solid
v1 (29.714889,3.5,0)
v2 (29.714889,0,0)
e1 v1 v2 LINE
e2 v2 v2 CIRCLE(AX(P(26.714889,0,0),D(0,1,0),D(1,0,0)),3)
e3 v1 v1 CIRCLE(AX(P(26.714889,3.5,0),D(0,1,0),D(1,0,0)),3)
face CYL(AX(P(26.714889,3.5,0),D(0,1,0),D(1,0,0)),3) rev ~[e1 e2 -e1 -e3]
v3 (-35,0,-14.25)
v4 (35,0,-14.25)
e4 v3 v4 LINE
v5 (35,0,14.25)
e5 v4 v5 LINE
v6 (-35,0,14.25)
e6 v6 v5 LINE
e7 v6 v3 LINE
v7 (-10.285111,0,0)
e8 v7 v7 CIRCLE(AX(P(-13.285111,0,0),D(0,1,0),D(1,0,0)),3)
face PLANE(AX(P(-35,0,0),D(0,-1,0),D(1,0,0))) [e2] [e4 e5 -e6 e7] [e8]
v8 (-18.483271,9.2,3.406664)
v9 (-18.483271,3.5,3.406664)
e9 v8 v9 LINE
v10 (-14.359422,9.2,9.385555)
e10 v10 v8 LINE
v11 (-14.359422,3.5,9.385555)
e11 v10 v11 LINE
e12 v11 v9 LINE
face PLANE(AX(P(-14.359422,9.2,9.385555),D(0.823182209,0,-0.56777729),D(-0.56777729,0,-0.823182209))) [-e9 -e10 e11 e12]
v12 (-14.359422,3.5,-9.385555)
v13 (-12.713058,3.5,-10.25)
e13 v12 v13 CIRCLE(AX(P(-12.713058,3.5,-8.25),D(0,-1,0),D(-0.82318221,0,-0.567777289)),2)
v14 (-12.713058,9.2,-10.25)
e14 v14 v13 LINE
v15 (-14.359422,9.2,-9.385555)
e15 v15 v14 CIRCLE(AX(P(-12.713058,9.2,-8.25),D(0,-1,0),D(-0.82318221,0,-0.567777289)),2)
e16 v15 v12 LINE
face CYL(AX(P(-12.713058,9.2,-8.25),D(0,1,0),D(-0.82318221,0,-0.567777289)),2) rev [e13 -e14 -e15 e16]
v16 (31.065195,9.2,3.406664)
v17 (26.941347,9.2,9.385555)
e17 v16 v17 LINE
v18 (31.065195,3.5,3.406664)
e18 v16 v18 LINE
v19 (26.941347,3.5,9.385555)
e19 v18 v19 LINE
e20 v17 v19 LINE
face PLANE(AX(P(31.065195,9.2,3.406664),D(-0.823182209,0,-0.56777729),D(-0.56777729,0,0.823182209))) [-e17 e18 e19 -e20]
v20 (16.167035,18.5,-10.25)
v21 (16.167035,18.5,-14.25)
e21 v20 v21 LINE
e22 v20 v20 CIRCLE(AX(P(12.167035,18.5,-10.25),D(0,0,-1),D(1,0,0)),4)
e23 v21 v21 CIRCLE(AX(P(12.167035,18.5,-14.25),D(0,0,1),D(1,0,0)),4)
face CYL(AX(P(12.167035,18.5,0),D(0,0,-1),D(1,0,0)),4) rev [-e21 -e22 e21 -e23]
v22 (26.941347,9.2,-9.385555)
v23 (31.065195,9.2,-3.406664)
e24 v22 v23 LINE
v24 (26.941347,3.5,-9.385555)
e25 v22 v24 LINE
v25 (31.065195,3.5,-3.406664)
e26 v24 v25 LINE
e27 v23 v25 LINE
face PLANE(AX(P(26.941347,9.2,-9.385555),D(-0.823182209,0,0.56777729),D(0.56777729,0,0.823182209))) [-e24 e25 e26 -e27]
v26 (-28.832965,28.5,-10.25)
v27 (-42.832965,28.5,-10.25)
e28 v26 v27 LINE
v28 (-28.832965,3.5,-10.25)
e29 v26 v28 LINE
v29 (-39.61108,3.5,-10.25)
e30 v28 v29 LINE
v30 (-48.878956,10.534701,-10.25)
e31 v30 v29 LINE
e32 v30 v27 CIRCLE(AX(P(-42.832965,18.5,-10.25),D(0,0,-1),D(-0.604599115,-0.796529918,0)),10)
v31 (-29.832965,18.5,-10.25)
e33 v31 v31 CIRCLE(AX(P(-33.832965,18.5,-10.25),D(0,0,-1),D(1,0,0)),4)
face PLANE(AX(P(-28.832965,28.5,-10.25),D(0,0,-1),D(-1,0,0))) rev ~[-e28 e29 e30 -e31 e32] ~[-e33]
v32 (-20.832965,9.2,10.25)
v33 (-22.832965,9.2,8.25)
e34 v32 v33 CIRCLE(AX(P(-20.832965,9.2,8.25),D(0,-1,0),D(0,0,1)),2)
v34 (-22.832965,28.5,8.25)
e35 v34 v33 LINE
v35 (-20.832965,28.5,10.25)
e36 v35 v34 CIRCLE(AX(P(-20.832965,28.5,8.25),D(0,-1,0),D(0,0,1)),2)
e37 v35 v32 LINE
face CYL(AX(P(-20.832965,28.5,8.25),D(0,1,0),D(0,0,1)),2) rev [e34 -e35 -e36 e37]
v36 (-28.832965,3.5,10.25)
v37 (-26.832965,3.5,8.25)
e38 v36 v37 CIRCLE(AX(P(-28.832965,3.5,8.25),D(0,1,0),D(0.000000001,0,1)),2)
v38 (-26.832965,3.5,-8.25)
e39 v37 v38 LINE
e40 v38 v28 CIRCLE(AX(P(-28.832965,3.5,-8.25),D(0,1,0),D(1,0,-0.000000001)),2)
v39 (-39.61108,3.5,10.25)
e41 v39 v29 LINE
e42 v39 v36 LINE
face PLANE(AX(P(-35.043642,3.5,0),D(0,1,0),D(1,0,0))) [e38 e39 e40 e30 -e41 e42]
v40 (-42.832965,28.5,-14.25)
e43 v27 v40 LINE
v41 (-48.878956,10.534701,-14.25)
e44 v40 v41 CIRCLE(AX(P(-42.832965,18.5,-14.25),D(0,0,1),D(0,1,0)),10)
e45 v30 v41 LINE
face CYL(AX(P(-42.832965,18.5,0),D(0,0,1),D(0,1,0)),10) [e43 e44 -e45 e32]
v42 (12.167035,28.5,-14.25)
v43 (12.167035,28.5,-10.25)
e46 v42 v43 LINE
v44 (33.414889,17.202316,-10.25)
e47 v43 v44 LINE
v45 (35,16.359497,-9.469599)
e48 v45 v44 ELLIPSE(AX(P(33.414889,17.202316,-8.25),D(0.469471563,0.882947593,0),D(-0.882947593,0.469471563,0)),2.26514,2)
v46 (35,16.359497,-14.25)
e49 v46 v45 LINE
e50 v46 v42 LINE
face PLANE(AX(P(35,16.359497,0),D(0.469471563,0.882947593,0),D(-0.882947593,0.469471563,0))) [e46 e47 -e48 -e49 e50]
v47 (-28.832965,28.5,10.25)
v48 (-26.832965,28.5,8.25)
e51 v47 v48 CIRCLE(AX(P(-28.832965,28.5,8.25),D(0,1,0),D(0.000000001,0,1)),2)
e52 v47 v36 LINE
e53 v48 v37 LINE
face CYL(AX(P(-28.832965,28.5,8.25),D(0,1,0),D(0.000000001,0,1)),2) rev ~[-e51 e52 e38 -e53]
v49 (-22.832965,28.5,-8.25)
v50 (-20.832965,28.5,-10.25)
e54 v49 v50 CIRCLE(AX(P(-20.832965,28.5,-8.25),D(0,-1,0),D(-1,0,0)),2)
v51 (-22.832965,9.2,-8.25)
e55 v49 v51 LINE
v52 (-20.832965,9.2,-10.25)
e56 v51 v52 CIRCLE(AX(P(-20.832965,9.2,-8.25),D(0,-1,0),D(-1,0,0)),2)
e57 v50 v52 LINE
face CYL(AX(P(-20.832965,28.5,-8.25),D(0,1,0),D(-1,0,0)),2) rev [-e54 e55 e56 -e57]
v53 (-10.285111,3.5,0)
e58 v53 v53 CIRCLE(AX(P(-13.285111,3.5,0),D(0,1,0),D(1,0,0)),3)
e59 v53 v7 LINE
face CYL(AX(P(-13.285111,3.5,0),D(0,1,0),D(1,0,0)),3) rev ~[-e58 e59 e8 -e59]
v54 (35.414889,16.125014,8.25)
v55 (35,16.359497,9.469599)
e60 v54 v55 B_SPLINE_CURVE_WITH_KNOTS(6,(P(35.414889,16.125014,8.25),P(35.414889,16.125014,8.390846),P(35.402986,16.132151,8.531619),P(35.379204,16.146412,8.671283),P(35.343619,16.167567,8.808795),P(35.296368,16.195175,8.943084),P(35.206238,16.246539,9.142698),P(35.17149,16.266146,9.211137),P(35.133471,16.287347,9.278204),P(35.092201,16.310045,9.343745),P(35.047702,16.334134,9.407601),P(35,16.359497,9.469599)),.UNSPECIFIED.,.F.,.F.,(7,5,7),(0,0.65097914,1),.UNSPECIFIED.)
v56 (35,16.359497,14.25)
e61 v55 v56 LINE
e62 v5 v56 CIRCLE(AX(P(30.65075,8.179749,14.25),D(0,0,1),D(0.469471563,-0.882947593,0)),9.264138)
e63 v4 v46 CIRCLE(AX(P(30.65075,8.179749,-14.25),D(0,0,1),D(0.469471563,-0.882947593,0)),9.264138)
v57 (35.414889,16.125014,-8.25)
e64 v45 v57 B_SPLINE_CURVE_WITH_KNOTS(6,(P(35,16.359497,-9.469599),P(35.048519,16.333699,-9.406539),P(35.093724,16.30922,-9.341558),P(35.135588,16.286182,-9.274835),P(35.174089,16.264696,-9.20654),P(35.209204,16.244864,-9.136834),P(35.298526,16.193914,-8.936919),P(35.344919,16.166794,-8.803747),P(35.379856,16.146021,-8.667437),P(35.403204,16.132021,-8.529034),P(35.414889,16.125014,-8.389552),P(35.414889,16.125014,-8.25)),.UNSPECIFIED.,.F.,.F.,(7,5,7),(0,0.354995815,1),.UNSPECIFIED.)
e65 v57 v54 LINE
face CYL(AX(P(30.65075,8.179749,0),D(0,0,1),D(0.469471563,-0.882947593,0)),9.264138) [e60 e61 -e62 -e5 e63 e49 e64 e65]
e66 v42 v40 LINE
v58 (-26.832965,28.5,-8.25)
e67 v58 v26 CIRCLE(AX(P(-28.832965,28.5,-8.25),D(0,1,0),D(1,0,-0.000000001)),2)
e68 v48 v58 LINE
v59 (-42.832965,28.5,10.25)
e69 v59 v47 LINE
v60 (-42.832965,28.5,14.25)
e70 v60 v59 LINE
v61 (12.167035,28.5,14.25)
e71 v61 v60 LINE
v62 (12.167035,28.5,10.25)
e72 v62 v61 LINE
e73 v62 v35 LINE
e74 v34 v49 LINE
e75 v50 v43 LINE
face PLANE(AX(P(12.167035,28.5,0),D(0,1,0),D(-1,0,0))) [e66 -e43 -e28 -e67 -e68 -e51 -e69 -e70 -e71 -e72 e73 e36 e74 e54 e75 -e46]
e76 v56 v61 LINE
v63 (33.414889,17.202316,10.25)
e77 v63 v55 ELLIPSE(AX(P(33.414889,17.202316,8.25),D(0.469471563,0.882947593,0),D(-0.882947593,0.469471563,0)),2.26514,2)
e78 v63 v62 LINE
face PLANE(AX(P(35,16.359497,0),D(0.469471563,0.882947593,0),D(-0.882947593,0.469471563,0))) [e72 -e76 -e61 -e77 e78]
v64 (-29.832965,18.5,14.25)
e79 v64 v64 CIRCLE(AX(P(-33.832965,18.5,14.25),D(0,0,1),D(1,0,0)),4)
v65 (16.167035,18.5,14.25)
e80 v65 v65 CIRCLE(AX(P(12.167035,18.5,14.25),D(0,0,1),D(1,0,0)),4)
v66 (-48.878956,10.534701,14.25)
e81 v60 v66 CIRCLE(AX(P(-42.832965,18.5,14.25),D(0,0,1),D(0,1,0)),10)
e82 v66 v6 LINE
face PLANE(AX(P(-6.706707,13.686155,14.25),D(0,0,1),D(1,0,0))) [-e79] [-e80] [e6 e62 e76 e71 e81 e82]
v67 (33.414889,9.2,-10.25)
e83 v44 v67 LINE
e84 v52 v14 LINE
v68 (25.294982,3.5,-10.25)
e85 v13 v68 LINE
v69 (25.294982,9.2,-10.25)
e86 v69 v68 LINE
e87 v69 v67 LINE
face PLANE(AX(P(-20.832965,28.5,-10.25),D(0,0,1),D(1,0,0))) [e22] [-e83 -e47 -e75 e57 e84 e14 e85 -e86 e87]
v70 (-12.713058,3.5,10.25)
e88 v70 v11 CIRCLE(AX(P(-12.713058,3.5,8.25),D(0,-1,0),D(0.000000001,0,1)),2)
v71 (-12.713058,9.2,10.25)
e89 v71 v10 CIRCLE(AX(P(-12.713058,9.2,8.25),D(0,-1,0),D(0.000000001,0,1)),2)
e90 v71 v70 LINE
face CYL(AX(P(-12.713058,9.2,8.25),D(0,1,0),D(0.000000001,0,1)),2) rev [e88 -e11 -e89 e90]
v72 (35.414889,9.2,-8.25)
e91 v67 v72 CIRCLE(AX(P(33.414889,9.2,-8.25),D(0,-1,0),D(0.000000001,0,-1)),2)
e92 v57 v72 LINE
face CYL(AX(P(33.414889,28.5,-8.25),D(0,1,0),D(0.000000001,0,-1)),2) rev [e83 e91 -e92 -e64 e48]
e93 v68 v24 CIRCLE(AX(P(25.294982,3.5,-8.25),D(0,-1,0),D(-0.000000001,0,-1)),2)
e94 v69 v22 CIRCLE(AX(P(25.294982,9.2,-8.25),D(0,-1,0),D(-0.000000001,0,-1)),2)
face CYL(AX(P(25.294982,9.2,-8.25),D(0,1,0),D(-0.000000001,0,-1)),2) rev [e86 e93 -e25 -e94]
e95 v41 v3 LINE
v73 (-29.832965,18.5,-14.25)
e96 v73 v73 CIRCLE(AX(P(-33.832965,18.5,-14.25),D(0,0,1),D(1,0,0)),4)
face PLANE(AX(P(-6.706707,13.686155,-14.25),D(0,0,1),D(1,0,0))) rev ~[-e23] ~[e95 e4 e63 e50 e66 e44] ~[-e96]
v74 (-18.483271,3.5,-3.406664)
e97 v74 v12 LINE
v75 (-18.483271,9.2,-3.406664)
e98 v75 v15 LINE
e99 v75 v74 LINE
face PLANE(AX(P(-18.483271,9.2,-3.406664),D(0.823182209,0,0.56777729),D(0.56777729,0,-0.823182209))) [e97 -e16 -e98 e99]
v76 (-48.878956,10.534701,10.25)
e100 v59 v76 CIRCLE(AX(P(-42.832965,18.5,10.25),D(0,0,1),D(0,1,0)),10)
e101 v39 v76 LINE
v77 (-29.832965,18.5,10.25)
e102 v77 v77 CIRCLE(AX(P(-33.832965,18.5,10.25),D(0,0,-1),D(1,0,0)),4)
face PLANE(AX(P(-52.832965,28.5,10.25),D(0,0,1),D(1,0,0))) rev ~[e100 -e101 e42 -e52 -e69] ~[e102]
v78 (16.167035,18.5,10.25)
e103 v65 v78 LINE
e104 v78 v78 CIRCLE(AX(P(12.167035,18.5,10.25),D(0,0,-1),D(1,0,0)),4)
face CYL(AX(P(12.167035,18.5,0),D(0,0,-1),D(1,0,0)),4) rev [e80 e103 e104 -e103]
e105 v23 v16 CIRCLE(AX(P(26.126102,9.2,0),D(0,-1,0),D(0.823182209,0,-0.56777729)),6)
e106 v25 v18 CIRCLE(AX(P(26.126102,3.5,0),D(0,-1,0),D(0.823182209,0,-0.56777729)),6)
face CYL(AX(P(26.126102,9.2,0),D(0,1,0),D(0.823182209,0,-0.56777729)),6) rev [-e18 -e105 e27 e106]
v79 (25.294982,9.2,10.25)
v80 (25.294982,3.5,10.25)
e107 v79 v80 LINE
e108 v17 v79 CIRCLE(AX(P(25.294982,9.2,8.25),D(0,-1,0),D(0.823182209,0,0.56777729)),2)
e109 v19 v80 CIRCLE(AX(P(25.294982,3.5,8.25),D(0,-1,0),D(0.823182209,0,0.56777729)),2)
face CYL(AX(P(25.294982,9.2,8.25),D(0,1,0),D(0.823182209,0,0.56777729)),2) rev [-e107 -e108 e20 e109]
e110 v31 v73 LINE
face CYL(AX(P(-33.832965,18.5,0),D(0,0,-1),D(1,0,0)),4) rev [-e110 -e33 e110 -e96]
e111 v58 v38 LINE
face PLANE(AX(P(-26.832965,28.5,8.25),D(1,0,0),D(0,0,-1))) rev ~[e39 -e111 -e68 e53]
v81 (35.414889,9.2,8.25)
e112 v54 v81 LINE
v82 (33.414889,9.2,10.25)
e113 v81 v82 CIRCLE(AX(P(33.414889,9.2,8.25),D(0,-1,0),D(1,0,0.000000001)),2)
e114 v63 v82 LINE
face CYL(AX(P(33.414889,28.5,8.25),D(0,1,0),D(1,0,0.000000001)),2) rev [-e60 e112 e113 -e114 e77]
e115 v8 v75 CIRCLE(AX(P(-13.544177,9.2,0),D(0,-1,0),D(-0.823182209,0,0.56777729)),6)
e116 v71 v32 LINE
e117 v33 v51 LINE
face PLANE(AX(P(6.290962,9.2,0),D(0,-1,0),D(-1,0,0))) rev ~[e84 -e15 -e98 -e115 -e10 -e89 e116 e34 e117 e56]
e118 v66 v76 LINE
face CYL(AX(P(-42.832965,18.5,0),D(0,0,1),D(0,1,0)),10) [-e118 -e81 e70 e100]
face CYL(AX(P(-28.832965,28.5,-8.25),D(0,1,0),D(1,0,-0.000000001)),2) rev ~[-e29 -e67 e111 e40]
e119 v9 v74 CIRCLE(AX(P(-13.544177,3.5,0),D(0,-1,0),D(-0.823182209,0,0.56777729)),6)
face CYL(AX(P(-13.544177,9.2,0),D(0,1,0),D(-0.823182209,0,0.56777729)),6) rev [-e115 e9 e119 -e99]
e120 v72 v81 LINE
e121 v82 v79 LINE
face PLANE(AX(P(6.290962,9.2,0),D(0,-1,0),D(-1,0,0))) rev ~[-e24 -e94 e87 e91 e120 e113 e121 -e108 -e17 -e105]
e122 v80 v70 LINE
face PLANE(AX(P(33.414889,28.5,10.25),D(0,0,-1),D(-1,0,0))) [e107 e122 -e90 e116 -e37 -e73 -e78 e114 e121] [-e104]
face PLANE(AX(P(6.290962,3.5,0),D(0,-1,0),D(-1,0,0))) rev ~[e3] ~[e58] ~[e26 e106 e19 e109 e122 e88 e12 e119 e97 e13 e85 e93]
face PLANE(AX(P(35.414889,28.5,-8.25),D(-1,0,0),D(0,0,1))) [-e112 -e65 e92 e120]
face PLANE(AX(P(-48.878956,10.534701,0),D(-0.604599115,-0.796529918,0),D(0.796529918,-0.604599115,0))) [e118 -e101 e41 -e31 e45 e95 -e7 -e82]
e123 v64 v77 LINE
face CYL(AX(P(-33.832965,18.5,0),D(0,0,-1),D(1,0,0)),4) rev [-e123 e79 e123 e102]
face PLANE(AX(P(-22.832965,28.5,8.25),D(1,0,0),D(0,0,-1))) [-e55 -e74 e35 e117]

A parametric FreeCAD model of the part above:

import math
import FreeCAD as App
import Part
import Sketcher

V = App.Vector
Q = App.Units.Quantity

doc = App.newDocument("Part")
body = doc.addObject("PartDesign::Body", "Body")

# Sketch on XY plane
sketch1 = body.newObject("Sketcher::SketchObject", "Sketch")
sketch1.AttachmentSupport = (doc.getObject("XY_Plane"), [""])
sketch1.MapMode = "FlatFace"
sketch1.addGeometry([
    Part.LineSegment(V(-35, 0, 0), V(35, 0, 0)),  # 0
    Part.ArcOfCircle(Part.Circle(V(30.7, 8.2, 0), V(0, 0, 1), 9.3), math.radians(-62), math.radians(62)),  # 1
    Part.LineSegment(V(35, 16.4, 0), V(12.2, 28.5, 0)),  # 2
    Part.LineSegment(V(12.2, 28.5, 0), V(-42.8, 28.5, 0)),  # 3
    Part.ArcOfCircle(Part.Circle(V(-42.8, 18.5, 0), V(0, 0, 1), 10), math.radians(90), math.radians(233)),  # 4
    Part.LineSegment(V(-48.9, 10.5, 0), V(-35, 0, 0)),  # 5
    Part.Circle(V(-33.8, 18.5, 0), V(0, 0, 1), 4),  # 6
    Part.Circle(V(12.2, 18.5, 0), V(0, 0, 1), 4),  # 7
], False)
sketch1.addConstraint([
    Sketcher.Constraint("Coincident", 0, 2, 1, 1),
    Sketcher.Constraint("Tangent", 1, 2, 2, 1),
    Sketcher.Constraint("Coincident", 2, 2, 3, 1),
    Sketcher.Constraint("Tangent", 3, 2, 4, 1),
    Sketcher.Constraint("Tangent", 4, 2, 5, 1),
    Sketcher.Constraint("Coincident", 5, 2, 0, 1),
    Sketcher.Constraint("Horizontal", 0),
    Sketcher.Constraint("Horizontal", 3),
    Sketcher.Constraint("Equal", 6, 7),
    Sketcher.Constraint("Symmetric", 0, 2, 5, 2, -1, 1),
    Sketcher.Constraint("Horizontal", 4, 3, 6, 3),
    Sketcher.Constraint("Horizontal", 6, 3, 7, 3),
    Sketcher.Constraint("Vertical", 0, 2, 1, 2),
    Sketcher.Constraint("Vertical", 7, 3, 2, 2),
    Sketcher.Constraint("Diameter", 6, 8.0),
    Sketcher.Constraint("Radius", 4, 10.0),
    Sketcher.Constraint("DistanceX", 0, 1, 0, 2, 70.0),
    Sketcher.Constraint("DistanceX", 3, 2, 3, 1, 55.0),
    Sketcher.Constraint("Angle", 2, Q("152 deg")),
    Sketcher.Constraint("Angle", 5, Q("-37.2 deg")),
    Sketcher.Constraint("DistanceX", 4, 3, 6, 3, 9.0),
    Sketcher.Constraint("DistanceY", -1, 1, 4, 3, 18.5),
])
pad1 = body.newObject("PartDesign::Pad", "Pad")
pad1.Profile = sketch1
pad1.Length = 28.5
pad1.Midplane = True

# Sketch on XZ plane
sketch2 = body.newObject("Sketcher::SketchObject", "Sketch001")
sketch2.AttachmentSupport = (doc.getObject("XZ_Plane"), [""])
sketch2.MapMode = "FlatFace"
sketch2.AttachmentOffset = App.Placement(V(0, 0, -28.5), App.Rotation())
sketch2.addGeometry([
    Part.LineSegment(V(-28.8, -10.2, 0), V(-52.8, -10.2, 0)),  # 0
    Part.LineSegment(V(-52.8, -10.2, 0), V(-52.8, 10.2, 0)),  # 1
    Part.LineSegment(V(-52.8, 10.2, 0), V(-28.8, 10.2, 0)),  # 2
    Part.ArcOfCircle(Part.Circle(V(-28.8, 8.2, 0), V(0, 0, 1), 2), math.radians(0), math.radians(90)),  # 3
    Part.LineSegment(V(-26.8, 8.2, 0), V(-26.8, -8.2, 0)),  # 4
    Part.ArcOfCircle(Part.Circle(V(-28.8, -8.2, 0), V(0, 0, 1), 2), math.radians(-90), math.radians(0)),  # 5
], False)
sketch2.addConstraint([
    Sketcher.Constraint("Coincident", 0, 2, 1, 1),
    Sketcher.Constraint("Coincident", 1, 2, 2, 1),
    Sketcher.Constraint("Tangent", 2, 2, 3, 2),
    Sketcher.Constraint("Tangent", 3, 1, 4, 1),
    Sketcher.Constraint("Tangent", 4, 2, 5, 2),
    Sketcher.Constraint("Tangent", 5, 1, 0, 1),
    Sketcher.Constraint("Horizontal", 0),
    Sketcher.Constraint("Vertical", 1),
    Sketcher.Constraint("Horizontal", 2),
    Sketcher.Constraint("Vertical", 4),
    Sketcher.Constraint("Equal", 3, 5),
    Sketcher.Constraint("Radius", 3, 2.0),
    Sketcher.Constraint("DistanceX", 0, 2, 0, 1, 24.0),
    Sketcher.Constraint("DistanceY", 1, 1, 1, 2, 20.5),
    Sketcher.Constraint("DistanceY", -1, 1, 3, 3, 8.25),
    Sketcher.Constraint("DistanceX", 3, 3, -1, 1, 28.832965),
])
pocket1 = body.newObject("PartDesign::Pocket", "Pocket")
pocket1.Profile = sketch2
pocket1.Length = 25
pocket1.Reversed = True

# Sketch on XZ plane
sketch3 = body.newObject("Sketcher::SketchObject", "Sketch002")
sketch3.AttachmentSupport = (doc.getObject("XZ_Plane"), [""])
sketch3.MapMode = "FlatFace"
sketch3.AttachmentOffset = App.Placement(V(0, 0, -28.5), App.Rotation())
sketch3.addGeometry([
    Part.LineSegment(V(33.4, -10.2, 0), V(-20.8, -10.2, 0)),  # 0
    Part.ArcOfCircle(Part.Circle(V(-20.8, -8.2, 0), V(0, 0, 1), 2), math.radians(180), math.radians(270)),  # 1
    Part.LineSegment(V(-22.8, -8.2, 0), V(-22.8, 8.2, 0)),  # 2
    Part.ArcOfCircle(Part.Circle(V(-20.8, 8.2, 0), V(0, 0, 1), 2), math.radians(90), math.radians(180)),  # 3
    Part.LineSegment(V(-20.8, 10.2, 0), V(33.4, 10.2, 0)),  # 4
    Part.ArcOfCircle(Part.Circle(V(33.4, 8.2, 0), V(0, 0, 1), 2), math.radians(0), math.radians(90)),  # 5
    Part.LineSegment(V(35.4, 8.2, 0), V(35.4, -8.2, 0)),  # 6
    Part.ArcOfCircle(Part.Circle(V(33.4, -8.2, 0), V(0, 0, 1), 2), math.radians(-90), math.radians(0)),  # 7
], False)
sketch3.addConstraint([
    Sketcher.Constraint("Tangent", 0, 2, 1, 2),
    Sketcher.Constraint("Tangent", 1, 1, 2, 1),
    Sketcher.Constraint("Tangent", 2, 2, 3, 2),
    Sketcher.Constraint("Tangent", 3, 1, 4, 1),
    Sketcher.Constraint("Tangent", 4, 2, 5, 2),
    Sketcher.Constraint("Tangent", 5, 1, 6, 1),
    Sketcher.Constraint("Tangent", 6, 2, 7, 2),
    Sketcher.Constraint("Tangent", 7, 1, 0, 1),
    Sketcher.Constraint("Horizontal", 0),
    Sketcher.Constraint("Vertical", 2),
    Sketcher.Constraint("Horizontal", 4),
    Sketcher.Constraint("Vertical", 6),
    Sketcher.Constraint("Equal", 1, 3),
    Sketcher.Constraint("Equal", 3, 5),
    Sketcher.Constraint("Equal", 5, 7),
    Sketcher.Constraint("Radius", 1, 2.0),
    Sketcher.Constraint("DistanceY", 2, 1, 2, 2, 16.5),
    Sketcher.Constraint("DistanceY", 1, 3, -1, 1, 8.25),
    Sketcher.Constraint("DistanceX", 0, 2, 0, 1, 54.247853),
    Sketcher.Constraint("DistanceX", -1, 1, 5, 3, 33.414889),
])
pocket2 = body.newObject("PartDesign::Pocket", "Pocket001")
pocket2.Profile = sketch3
pocket2.Length = 19.3
pocket2.Reversed = True

# Sketch on XZ plane
sketch4 = body.newObject("Sketcher::SketchObject", "Sketch003")
sketch4.AttachmentSupport = (doc.getObject("XZ_Plane"), [""])
sketch4.MapMode = "FlatFace"
sketch4.AttachmentOffset = App.Placement(V(0, 0, -9.2), App.Rotation())
sketch4.addGeometry([
    Part.LineSegment(V(-14.4, -9.4, 0), V(-18.5, -3.4, 0)),  # 0
    Part.ArcOfCircle(Part.Circle(V(-13.5, 0, 0), V(0, 0, 1), 6), math.radians(145), math.radians(215)),  # 1
    Part.LineSegment(V(-18.5, 3.4, 0), V(-14.4, 9.4, 0)),  # 2
    Part.ArcOfCircle(Part.Circle(V(-12.7, 8.3, 0), V(0, 0, 1), 2), math.radians(90), math.radians(145)),  # 3
    Part.LineSegment(V(-12.7, 10.2, 0), V(25.3, 10.2, 0)),  # 4
    Part.ArcOfCircle(Part.Circle(V(25.3, 8.3, 0), V(0, 0, 1), 2), math.radians(35), math.radians(90)),  # 5
    Part.LineSegment(V(26.9, 9.4, 0), V(31.1, 3.4, 0)),  # 6
    Part.ArcOfCircle(Part.Circle(V(26.1, 0, 0), V(0, 0, 1), 6), math.radians(-35), math.radians(35)),  # 7
    Part.LineSegment(V(31.1, -3.4, 0), V(26.9, -9.4, 0)),  # 8
    Part.ArcOfCircle(Part.Circle(V(25.3, -8.3, 0), V(0, 0, 1), 2), math.radians(-90), math.radians(-35)),  # 9
    Part.LineSegment(V(25.3, -10.2, 0), V(-12.7, -10.2, 0)),  # 10
    Part.ArcOfCircle(Part.Circle(V(-12.7, -8.3, 0), V(0, 0, 1), 2), math.radians(-145), math.radians(-90)),  # 11
], False)
sketch4.addConstraint([
    Sketcher.Constraint("Tangent", 0, 2, 1, 2),
    Sketcher.Constraint("Tangent", 1, 1, 2, 1),
    Sketcher.Constraint("Tangent", 2, 2, 3, 2),
    Sketcher.Constraint("Tangent", 3, 1, 4, 1),
    Sketcher.Constraint("Tangent", 4, 2, 5, 2),
    Sketcher.Constraint("Tangent", 5, 1, 6, 1),
    Sketcher.Constraint("Tangent", 6, 2, 7, 2),
    Sketcher.Constraint("Tangent", 7, 1, 8, 1),
    Sketcher.Constraint("Tangent", 8, 2, 9, 2),
    Sketcher.Constraint("Tangent", 9, 1, 10, 1),
    Sketcher.Constraint("Tangent", 10, 2, 11, 2),
    Sketcher.Constraint("Tangent", 11, 1, 0, 1),
    Sketcher.Constraint("Horizontal", 4),
    Sketcher.Constraint("Horizontal", 10),
    Sketcher.Constraint("Equal", 3, 5),
    Sketcher.Constraint("Equal", 1, 7),
    Sketcher.Constraint("Equal", 5, 9),
    Sketcher.Constraint("Equal", 9, 11),
    Sketcher.Constraint("Symmetric", 5, 3, 9, 3, -1),
    Sketcher.Constraint("Symmetric", 0, 2, 1, 1, -1),
    Sketcher.Constraint("PointOnObject", 7, 3, -1),
    Sketcher.Constraint("Parallel", 0, 6),
    Sketcher.Constraint("Radius", 1, 6.0),
    Sketcher.Constraint("Radius", 3, 2.0),
    Sketcher.Constraint("DistanceY", 9, 3, 5, 3, 16.5),
    Sketcher.Constraint("DistanceX", 4, 1, 4, 2, 38.00804),
    Sketcher.Constraint("DistanceX", -1, 1, 7, 3, 26.126102),
    Sketcher.Constraint("DistanceX", 3, 3, -1, 1, 12.713058),
])
pocket3 = body.newObject("PartDesign::Pocket", "Pocket002")
pocket3.Profile = sketch4
pocket3.Length = 5.7
pocket3.Reversed = True

# Sketch on XZ plane
sketch5 = body.newObject("Sketcher::SketchObject", "Sketch004")
sketch5.AttachmentSupport = (doc.getObject("XZ_Plane"), [""])
sketch5.MapMode = "FlatFace"
sketch5.AttachmentOffset = App.Placement(V(0, 0, -3.5), App.Rotation())
sketch5.addGeometry([
    Part.Circle(V(26.7, 0, 0), V(0, 0, 1), 3),
    Part.Circle(V(-13.3, 0, 0), V(0, 0, 1), 3),
], False)
sketch5.addConstraint([
    Sketcher.Constraint("Equal", 0, 1),
    Sketcher.Constraint("PointOnObject", 0, 3, -1),
    Sketcher.Constraint("PointOnObject", 1, 3, -1),
    Sketcher.Constraint("Diameter", 0, 6.0),
    Sketcher.Constraint("DistanceX", 1, 3, 0, 3, 40.0),
    Sketcher.Constraint("DistanceX", -1, 1, 0, 3, 26.714889),
])
pocket4 = body.newObject("PartDesign::Pocket", "Pocket003")
pocket4.Profile = sketch5
pocket4.Type = "ThroughAll"
pocket4.Reversed = True

doc.recompute()
